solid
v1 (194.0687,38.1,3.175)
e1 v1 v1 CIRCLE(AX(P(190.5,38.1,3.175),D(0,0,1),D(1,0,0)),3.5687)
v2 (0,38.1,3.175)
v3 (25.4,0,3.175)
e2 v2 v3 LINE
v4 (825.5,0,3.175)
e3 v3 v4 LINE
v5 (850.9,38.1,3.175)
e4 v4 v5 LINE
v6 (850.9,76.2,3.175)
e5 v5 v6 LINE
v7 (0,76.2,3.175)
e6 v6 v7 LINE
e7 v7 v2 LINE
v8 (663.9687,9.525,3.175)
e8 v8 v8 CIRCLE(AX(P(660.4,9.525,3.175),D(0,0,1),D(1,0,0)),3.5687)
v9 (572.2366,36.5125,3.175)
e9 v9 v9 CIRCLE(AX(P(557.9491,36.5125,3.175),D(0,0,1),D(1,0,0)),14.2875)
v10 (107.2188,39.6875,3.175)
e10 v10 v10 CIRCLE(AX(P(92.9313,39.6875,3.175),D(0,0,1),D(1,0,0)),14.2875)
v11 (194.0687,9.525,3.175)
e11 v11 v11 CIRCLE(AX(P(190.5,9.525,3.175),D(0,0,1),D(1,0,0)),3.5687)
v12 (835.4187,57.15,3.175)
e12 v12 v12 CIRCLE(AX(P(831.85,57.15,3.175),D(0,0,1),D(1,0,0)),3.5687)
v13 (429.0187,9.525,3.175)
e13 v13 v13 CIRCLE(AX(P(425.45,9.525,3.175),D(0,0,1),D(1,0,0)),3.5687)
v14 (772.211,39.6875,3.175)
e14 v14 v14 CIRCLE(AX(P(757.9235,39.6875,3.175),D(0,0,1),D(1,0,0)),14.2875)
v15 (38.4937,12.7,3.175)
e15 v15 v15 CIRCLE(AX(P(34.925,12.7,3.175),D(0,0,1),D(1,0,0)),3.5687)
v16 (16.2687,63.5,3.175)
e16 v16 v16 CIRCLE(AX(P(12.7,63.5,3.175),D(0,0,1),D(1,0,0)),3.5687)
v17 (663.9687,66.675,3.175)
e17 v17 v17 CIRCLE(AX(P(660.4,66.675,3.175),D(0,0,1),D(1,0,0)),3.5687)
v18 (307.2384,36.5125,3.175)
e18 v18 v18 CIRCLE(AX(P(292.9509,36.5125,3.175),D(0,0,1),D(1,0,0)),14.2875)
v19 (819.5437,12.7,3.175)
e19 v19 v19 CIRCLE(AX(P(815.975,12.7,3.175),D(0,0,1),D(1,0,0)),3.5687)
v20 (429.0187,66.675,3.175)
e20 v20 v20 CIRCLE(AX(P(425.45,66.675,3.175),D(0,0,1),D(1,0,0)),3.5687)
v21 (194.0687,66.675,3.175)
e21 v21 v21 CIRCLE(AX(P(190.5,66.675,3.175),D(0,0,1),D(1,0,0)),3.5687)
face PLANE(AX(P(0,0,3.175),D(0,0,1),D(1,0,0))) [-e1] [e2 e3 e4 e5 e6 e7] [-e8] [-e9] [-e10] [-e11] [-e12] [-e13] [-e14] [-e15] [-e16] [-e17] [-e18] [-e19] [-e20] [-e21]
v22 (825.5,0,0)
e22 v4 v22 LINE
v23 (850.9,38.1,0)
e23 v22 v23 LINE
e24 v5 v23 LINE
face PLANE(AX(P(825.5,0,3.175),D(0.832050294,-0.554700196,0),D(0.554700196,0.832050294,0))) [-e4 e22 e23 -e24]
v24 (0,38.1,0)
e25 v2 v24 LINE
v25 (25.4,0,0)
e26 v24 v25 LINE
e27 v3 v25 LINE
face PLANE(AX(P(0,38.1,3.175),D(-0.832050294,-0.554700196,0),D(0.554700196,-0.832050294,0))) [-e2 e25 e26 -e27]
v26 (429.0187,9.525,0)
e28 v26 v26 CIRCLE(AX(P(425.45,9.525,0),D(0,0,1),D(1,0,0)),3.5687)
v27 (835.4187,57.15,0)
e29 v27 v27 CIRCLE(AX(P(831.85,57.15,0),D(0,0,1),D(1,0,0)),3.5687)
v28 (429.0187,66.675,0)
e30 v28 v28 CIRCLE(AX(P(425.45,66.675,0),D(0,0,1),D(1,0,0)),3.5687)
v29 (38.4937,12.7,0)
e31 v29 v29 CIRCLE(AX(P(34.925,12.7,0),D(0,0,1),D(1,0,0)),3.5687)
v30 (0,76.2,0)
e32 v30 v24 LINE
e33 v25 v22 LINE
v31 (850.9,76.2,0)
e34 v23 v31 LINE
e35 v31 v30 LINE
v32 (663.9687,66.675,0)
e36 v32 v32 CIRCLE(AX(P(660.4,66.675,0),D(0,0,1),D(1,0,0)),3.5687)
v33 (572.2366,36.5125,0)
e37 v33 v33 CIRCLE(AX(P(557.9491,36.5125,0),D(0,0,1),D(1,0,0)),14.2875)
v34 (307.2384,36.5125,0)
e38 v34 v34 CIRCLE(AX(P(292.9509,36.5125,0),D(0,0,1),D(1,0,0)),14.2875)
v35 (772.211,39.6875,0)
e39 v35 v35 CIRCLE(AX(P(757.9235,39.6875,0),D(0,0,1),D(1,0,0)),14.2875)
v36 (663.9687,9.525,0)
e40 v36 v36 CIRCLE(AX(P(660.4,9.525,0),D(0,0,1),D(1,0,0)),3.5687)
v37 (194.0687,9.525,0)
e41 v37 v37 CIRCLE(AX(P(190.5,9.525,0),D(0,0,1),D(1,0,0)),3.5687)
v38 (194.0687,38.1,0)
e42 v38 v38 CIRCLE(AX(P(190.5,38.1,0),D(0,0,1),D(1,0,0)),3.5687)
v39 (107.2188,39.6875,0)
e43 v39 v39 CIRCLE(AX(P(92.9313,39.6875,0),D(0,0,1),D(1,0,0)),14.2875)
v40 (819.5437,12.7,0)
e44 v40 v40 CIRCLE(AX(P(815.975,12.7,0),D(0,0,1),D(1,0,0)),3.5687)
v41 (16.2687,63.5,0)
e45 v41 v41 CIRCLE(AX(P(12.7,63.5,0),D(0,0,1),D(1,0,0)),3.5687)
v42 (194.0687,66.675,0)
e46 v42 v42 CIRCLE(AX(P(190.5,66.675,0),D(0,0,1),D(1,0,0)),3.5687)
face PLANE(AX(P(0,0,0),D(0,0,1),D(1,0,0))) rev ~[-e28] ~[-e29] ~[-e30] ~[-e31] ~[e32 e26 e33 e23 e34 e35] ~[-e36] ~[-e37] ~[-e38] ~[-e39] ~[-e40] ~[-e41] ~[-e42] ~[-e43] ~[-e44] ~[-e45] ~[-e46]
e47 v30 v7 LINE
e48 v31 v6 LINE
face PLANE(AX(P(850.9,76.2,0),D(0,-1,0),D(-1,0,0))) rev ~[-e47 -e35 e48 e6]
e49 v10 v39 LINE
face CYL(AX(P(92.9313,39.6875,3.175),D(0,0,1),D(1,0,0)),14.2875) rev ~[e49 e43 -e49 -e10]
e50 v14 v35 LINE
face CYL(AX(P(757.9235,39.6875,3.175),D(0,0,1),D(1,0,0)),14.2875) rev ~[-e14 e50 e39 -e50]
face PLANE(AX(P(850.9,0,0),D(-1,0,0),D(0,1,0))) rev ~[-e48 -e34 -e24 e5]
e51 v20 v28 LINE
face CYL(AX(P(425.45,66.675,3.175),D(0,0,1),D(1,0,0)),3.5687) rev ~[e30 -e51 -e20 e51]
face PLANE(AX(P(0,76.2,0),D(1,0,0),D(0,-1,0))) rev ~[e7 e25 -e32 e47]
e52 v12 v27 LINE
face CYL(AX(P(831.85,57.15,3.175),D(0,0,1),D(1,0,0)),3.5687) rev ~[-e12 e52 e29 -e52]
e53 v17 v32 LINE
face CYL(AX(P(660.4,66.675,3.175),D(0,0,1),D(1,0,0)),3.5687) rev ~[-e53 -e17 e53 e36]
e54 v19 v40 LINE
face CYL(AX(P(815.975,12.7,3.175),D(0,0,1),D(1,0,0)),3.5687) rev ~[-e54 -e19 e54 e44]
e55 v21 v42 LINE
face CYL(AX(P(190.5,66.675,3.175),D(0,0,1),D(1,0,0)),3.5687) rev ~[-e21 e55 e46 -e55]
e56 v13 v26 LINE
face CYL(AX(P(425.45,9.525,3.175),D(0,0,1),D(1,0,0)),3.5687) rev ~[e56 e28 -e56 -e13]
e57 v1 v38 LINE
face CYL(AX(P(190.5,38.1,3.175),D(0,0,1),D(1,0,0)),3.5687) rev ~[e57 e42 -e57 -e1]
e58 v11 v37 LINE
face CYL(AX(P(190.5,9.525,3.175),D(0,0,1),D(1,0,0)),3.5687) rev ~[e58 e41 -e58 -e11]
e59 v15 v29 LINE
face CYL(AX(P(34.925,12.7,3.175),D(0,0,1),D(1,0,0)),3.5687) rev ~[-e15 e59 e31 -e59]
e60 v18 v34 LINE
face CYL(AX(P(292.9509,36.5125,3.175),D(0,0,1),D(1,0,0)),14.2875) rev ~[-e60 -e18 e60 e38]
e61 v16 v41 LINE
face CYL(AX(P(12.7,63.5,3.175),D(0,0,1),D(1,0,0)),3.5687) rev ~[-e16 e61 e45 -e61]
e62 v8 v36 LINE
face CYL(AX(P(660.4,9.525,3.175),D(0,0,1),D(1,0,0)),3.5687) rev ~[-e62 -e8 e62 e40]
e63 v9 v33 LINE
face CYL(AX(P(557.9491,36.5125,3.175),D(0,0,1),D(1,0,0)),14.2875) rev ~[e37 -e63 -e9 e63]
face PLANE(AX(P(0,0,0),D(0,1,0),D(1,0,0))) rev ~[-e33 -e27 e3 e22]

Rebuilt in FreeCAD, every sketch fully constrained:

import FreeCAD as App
import Part
import Sketcher
Q = App.Units.Quantity

doc = App.newDocument("Part")
body = doc.addObject("PartDesign::Body", "Body")

# Sketch on XY plane
sketch1 = body.newObject("Sketcher::SketchObject", "Sketch")
sketch1.AttachmentSupport = (doc.getObject("XY_Plane"), [""])
sketch1.MapMode = "FlatFace"
sketch1.addGeometry(Part.LineSegment(App.Vector(0, 76, 0), App.Vector(0, 0, 0)), False)
sketch1.addGeometry(Part.LineSegment(App.Vector(0, 0, 0), App.Vector(851, 0, 0)), False)
sketch1.addGeometry(Part.LineSegment(App.Vector(851, 0, 0), App.Vector(851, 76, 0)), False)
sketch1.addGeometry(Part.LineSegment(App.Vector(851, 76, 0), App.Vector(0, 76, 0)), False)
sketch1.addConstraint(Sketcher.Constraint("Coincident", 0, 2, 1, 1))
sketch1.addConstraint(Sketcher.Constraint("Coincident", 1, 2, 2, 1))
sketch1.addConstraint(Sketcher.Constraint("Coincident", 2, 2, 3, 1))
sketch1.addConstraint(Sketcher.Constraint("Coincident", 3, 2, 0, 1))
sketch1.addConstraint(Sketcher.Constraint("Vertical", 0))
sketch1.addConstraint(Sketcher.Constraint("Horizontal", 1))
sketch1.addConstraint(Sketcher.Constraint("Vertical", 2))
sketch1.addConstraint(Sketcher.Constraint("Horizontal", 3))
sketch1.addConstraint(Sketcher.Constraint("Coincident", 0, 2, -1, 1))
sketch1.addConstraint(Sketcher.Constraint("DistanceY", 0, 2, 0, 1, Q("3 in")))
sketch1.addConstraint(Sketcher.Constraint("DistanceX", 1, 1, 1, 2, Q("33.5 in")))
pad1 = body.newObject("PartDesign::Pad", "Pad")
pad1.Profile = sketch1
pad1.Length = Q("0.125 in")

# Sketch on XY plane
sketch2 = body.newObject("Sketcher::SketchObject", "Sketch001")
sketch2.AttachmentSupport = (doc.getObject("XY_Plane"), [""])
sketch2.MapMode = "FlatFace"
sketch2.AttachmentOffset = App.Placement(App.Vector(0, 0, 0.125 * 25.4), App.Rotation())
sketch2.addGeometry(Part.LineSegment(App.Vector(0, 38.1, 0), App.Vector(0, 0, 0)), False)
sketch2.addGeometry(Part.LineSegment(App.Vector(0, 0, 0), App.Vector(25.4, 0, 0)), False)
sketch2.addGeometry(Part.LineSegment(App.Vector(25.4, 0, 0), App.Vector(0, 38.1, 0)), False)
sketch2.addGeometry(Part.LineSegment(App.Vector(850.9, 38.1, 0), App.Vector(825.5, 0, 0)), False)
sketch2.addGeometry(Part.LineSegment(App.Vector(825.5, 0, 0), App.Vector(850.9, 0, 0)), False)
sketch2.addGeometry(Part.LineSegment(App.Vector(850.9, 0, 0), App.Vector(850.9, 38.1, 0)), False)
sketch2.addGeometry(Part.Circle(App.Vector(293, 36.5, 0), App.Vector(0, 0, 1), 14.3), False)
sketch2.addGeometry(Part.Circle(App.Vector(557.9, 36.5, 0), App.Vector(0, 0, 1), 14.3), False)
sketch2.addGeometry(Part.Circle(App.Vector(92.9, 39.7, 0), App.Vector(0, 0, 1), 14.3), False)
sketch2.addGeometry(Part.Circle(App.Vector(757.9, 39.7, 0), App.Vector(0, 0, 1), 14.3), False)
sketch2.addGeometry(Part.Circle(App.Vector(34.9, 12.7, 0), App.Vector(0, 0, 1), 3.6), False)
sketch2.addGeometry(Part.Circle(App.Vector(12.7, 63.5, 0), App.Vector(0, 0, 1), 3.6), False)
sketch2.addGeometry(Part.Circle(App.Vector(190.5, 38.1, 0), App.Vector(0, 0, 1), 3.6), False)
sketch2.addGeometry(Part.Circle(App.Vector(816, 12.7, 0), App.Vector(0, 0, 1), 3.6), False)
sketch2.addGeometry(Part.Circle(App.Vector(831.9, 57.1, 0), App.Vector(0, 0, 1), 3.6), False)
sketch2.addGeometry(Part.Circle(App.Vector(425.4, 66.7, 0), App.Vector(0, 0, 1), 3.6), False)
sketch2.addGeometry(Part.Circle(App.Vector(425.4, 9.5, 0), App.Vector(0, 0, 1), 3.6), False)
sketch2.addGeometry(Part.Circle(App.Vector(190.5, 9.5, 0), App.Vector(0, 0, 1), 3.6), False)
sketch2.addGeometry(Part.Circle(App.Vector(190.5, 66.7, 0), App.Vector(0, 0, 1), 3.6), False)
sketch2.addGeometry(Part.Circle(App.Vector(660.4, 66.7, 0), App.Vector(0, 0, 1), 3.6), False)
sketch2.addGeometry(Part.Circle(App.Vector(660.4, 9.5, 0), App.Vector(0, 0, 1), 3.6), False)
sketch2.addConstraint(Sketcher.Constraint("Coincident", 0, 2, 1, 1))
sketch2.addConstraint(Sketcher.Constraint("Coincident", 1, 2, 2, 1))
sketch2.addConstraint(Sketcher.Constraint("Coincident", 2, 2, 0, 1))
sketch2.addConstraint(Sketcher.Constraint("Coincident", 3, 2, 4, 1))
sketch2.addConstraint(Sketcher.Constraint("Coincident", 4, 2, 5, 1))
sketch2.addConstraint(Sketcher.Constraint("Coincident", 5, 2, 3, 1))
sketch2.addConstraint(Sketcher.Constraint("Vertical", 0))
sketch2.addConstraint(Sketcher.Constraint("Horizontal", 1))
sketch2.addConstraint(Sketcher.Constraint("Horizontal", 4))
sketch2.addConstraint(Sketcher.Constraint("Vertical", 5))
sketch2.addConstraint(Sketcher.Constraint("Coincident", 0, 2, -1, 1))
sketch2.addConstraint(Sketcher.Constraint("Equal", 6, 7))
sketch2.addConstraint(Sketcher.Constraint("Equal", 7, 8))
sketch2.addConstraint(Sketcher.Constraint("Equal", 8, 9))
sketch2.addConstraint(Sketcher.Constraint("Equal", 10, 11))
sketch2.addConstraint(Sketcher.Constraint("Equal", 11, 12))
sketch2.addConstraint(Sketcher.Constraint("Equal", 12, 13))
sketch2.addConstraint(Sketcher.Constraint("Equal", 13, 14))
sketch2.addConstraint(Sketcher.Constraint("Equal", 14, 15))
sketch2.addConstraint(Sketcher.Constraint("Equal", 15, 16))
sketch2.addConstraint(Sketcher.Constraint("Equal", 16, 17))
sketch2.addConstraint(Sketcher.Constraint("Equal", 17, 18))
sketch2.addConstraint(Sketcher.Constraint("Equal", 18, 19))
sketch2.addConstraint(Sketcher.Constraint("Equal", 19, 20))
sketch2.addConstraint(Sketcher.Constraint("PointOnObject", 3, 2, -1))
sketch2.addConstraint(Sketcher.Constraint("Horizontal", 6, 3, 7, 3))
sketch2.addConstraint(Sketcher.Constraint("Horizontal", 8, 3, 9, 3))
sketch2.addConstraint(Sketcher.Constraint("Horizontal", 10, 3, 13, 3))
sketch2.addConstraint(Sketcher.Constraint("Horizontal", 16, 3, 17, 3))
sketch2.addConstraint(Sketcher.Constraint("Horizontal", 15, 3, 18, 3))
sketch2.addConstraint(Sketcher.Constraint("Horizontal", 18, 3, 19, 3))
sketch2.addConstraint(Sketcher.Constraint("Horizontal", 17, 3, 20, 3))
sketch2.addConstraint(Sketcher.Constraint("Horizontal", 12, 3, 2, 2))
sketch2.addConstraint(Sketcher.Constraint("Horizontal", 2, 2, 5, 2))
sketch2.addConstraint(Sketcher.Constraint("Vertical", 15, 3, 16, 3))
sketch2.addConstraint(Sketcher.Constraint("Vertical", 12, 3, 17, 3))
sketch2.addConstraint(Sketcher.Constraint("Vertical", 17, 3, 18, 3))
sketch2.addConstraint(Sketcher.Constraint("Vertical", 19, 3, 20, 3))
sketch2.addConstraint(Sketcher.Constraint("Equal", 1, 4))
sketch2.addConstraint(Sketcher.Constraint("DistanceX", 1, 1, 1, 2, Q("1 in")))
sketch2.addConstraint(Sketcher.Constraint("Diameter", 6, Q("1.125 in")))
sketch2.addConstraint(Sketcher.Constraint("Diameter", 10, Q("0.281 in")))
sketch2.addConstraint(Sketcher.Constraint("DistanceY", 0, 2, 0, 1, Q("1.5 in")))
sketch2.addConstraint(Sketcher.Constraint("DistanceY", 10, 3, 12, 3, Q("1 in")))
sketch2.addConstraint(Sketcher.Constraint("DistanceY", 12, 3, 11, 3, Q("1 in")))
sketch2.addConstraint(Sketcher.Constraint("DistanceX", -1, 1, 11, 3, Q("0.5 in")))
sketch2.addConstraint(Sketcher.Constraint("DistanceX", -1, 1, 12, 3, Q("7.5 in")))
sketch2.addConstraint(Sketcher.Constraint("DistanceX", 20, 3, 4, 2, Q("7.5 in")))
sketch2.addConstraint(Sketcher.Constraint("DistanceX", -1, 1, 15, 3, Q("16.75 in")))
sketch2.addConstraint(Sketcher.Constraint("DistanceY", -1, 1, 16, 3, Q("0.375 in")))
sketch2.addConstraint(Sketcher.Constraint("DistanceX", -1, 1, 19, 3, Q("26 in")))
sketch2.addConstraint(Sketcher.Constraint("DistanceX", 6, 3, 7, 3, Q("10.433 in")))
sketch2.addConstraint(Sketcher.Constraint("DistanceY", 12, 3, 15, 3, Q("1.125 in")))
sketch2.addConstraint(Sketcher.Constraint("DistanceY", 14, 3, 19, 3, Q("0.375 in")))
sketch2.addConstraint(Sketcher.Constraint("DistanceX", 1, 2, 10, 3, Q("0.375 in")))
sketch2.addConstraint(Sketcher.Constraint("DistanceX", 13, 3, 3, 2, Q("0.375 in")))
sketch2.addConstraint(Sketcher.Constraint("DistanceX", -1, 1, 14, 3, Q("32.75 in")))
sketch2.addConstraint(Sketcher.Constraint("DistanceY", -1, 1, 6, 3, Q("1.4375 in")))
sketch2.addConstraint(Sketcher.Constraint("DistanceY", -1, 1, 8, 3, Q("1.5625 in")))
sketch2.addConstraint(Sketcher.Constraint("DistanceX", 7, 3, 9, 3, Q("7.873 in")))
sketch2.addConstraint(Sketcher.Constraint("DistanceX", -1, 1, 6, 3, Q("11.5335 in")))
sketch2.addConstraint(Sketcher.Constraint("DistanceX", 8, 3, 9, 3, Q("26.1808 in")))
pocket1 = body.newObject("PartDesign::Pocket", "Pocket")
pocket1.Profile = sketch2
pocket1.Length = Q("1 in")

doc.recompute()
